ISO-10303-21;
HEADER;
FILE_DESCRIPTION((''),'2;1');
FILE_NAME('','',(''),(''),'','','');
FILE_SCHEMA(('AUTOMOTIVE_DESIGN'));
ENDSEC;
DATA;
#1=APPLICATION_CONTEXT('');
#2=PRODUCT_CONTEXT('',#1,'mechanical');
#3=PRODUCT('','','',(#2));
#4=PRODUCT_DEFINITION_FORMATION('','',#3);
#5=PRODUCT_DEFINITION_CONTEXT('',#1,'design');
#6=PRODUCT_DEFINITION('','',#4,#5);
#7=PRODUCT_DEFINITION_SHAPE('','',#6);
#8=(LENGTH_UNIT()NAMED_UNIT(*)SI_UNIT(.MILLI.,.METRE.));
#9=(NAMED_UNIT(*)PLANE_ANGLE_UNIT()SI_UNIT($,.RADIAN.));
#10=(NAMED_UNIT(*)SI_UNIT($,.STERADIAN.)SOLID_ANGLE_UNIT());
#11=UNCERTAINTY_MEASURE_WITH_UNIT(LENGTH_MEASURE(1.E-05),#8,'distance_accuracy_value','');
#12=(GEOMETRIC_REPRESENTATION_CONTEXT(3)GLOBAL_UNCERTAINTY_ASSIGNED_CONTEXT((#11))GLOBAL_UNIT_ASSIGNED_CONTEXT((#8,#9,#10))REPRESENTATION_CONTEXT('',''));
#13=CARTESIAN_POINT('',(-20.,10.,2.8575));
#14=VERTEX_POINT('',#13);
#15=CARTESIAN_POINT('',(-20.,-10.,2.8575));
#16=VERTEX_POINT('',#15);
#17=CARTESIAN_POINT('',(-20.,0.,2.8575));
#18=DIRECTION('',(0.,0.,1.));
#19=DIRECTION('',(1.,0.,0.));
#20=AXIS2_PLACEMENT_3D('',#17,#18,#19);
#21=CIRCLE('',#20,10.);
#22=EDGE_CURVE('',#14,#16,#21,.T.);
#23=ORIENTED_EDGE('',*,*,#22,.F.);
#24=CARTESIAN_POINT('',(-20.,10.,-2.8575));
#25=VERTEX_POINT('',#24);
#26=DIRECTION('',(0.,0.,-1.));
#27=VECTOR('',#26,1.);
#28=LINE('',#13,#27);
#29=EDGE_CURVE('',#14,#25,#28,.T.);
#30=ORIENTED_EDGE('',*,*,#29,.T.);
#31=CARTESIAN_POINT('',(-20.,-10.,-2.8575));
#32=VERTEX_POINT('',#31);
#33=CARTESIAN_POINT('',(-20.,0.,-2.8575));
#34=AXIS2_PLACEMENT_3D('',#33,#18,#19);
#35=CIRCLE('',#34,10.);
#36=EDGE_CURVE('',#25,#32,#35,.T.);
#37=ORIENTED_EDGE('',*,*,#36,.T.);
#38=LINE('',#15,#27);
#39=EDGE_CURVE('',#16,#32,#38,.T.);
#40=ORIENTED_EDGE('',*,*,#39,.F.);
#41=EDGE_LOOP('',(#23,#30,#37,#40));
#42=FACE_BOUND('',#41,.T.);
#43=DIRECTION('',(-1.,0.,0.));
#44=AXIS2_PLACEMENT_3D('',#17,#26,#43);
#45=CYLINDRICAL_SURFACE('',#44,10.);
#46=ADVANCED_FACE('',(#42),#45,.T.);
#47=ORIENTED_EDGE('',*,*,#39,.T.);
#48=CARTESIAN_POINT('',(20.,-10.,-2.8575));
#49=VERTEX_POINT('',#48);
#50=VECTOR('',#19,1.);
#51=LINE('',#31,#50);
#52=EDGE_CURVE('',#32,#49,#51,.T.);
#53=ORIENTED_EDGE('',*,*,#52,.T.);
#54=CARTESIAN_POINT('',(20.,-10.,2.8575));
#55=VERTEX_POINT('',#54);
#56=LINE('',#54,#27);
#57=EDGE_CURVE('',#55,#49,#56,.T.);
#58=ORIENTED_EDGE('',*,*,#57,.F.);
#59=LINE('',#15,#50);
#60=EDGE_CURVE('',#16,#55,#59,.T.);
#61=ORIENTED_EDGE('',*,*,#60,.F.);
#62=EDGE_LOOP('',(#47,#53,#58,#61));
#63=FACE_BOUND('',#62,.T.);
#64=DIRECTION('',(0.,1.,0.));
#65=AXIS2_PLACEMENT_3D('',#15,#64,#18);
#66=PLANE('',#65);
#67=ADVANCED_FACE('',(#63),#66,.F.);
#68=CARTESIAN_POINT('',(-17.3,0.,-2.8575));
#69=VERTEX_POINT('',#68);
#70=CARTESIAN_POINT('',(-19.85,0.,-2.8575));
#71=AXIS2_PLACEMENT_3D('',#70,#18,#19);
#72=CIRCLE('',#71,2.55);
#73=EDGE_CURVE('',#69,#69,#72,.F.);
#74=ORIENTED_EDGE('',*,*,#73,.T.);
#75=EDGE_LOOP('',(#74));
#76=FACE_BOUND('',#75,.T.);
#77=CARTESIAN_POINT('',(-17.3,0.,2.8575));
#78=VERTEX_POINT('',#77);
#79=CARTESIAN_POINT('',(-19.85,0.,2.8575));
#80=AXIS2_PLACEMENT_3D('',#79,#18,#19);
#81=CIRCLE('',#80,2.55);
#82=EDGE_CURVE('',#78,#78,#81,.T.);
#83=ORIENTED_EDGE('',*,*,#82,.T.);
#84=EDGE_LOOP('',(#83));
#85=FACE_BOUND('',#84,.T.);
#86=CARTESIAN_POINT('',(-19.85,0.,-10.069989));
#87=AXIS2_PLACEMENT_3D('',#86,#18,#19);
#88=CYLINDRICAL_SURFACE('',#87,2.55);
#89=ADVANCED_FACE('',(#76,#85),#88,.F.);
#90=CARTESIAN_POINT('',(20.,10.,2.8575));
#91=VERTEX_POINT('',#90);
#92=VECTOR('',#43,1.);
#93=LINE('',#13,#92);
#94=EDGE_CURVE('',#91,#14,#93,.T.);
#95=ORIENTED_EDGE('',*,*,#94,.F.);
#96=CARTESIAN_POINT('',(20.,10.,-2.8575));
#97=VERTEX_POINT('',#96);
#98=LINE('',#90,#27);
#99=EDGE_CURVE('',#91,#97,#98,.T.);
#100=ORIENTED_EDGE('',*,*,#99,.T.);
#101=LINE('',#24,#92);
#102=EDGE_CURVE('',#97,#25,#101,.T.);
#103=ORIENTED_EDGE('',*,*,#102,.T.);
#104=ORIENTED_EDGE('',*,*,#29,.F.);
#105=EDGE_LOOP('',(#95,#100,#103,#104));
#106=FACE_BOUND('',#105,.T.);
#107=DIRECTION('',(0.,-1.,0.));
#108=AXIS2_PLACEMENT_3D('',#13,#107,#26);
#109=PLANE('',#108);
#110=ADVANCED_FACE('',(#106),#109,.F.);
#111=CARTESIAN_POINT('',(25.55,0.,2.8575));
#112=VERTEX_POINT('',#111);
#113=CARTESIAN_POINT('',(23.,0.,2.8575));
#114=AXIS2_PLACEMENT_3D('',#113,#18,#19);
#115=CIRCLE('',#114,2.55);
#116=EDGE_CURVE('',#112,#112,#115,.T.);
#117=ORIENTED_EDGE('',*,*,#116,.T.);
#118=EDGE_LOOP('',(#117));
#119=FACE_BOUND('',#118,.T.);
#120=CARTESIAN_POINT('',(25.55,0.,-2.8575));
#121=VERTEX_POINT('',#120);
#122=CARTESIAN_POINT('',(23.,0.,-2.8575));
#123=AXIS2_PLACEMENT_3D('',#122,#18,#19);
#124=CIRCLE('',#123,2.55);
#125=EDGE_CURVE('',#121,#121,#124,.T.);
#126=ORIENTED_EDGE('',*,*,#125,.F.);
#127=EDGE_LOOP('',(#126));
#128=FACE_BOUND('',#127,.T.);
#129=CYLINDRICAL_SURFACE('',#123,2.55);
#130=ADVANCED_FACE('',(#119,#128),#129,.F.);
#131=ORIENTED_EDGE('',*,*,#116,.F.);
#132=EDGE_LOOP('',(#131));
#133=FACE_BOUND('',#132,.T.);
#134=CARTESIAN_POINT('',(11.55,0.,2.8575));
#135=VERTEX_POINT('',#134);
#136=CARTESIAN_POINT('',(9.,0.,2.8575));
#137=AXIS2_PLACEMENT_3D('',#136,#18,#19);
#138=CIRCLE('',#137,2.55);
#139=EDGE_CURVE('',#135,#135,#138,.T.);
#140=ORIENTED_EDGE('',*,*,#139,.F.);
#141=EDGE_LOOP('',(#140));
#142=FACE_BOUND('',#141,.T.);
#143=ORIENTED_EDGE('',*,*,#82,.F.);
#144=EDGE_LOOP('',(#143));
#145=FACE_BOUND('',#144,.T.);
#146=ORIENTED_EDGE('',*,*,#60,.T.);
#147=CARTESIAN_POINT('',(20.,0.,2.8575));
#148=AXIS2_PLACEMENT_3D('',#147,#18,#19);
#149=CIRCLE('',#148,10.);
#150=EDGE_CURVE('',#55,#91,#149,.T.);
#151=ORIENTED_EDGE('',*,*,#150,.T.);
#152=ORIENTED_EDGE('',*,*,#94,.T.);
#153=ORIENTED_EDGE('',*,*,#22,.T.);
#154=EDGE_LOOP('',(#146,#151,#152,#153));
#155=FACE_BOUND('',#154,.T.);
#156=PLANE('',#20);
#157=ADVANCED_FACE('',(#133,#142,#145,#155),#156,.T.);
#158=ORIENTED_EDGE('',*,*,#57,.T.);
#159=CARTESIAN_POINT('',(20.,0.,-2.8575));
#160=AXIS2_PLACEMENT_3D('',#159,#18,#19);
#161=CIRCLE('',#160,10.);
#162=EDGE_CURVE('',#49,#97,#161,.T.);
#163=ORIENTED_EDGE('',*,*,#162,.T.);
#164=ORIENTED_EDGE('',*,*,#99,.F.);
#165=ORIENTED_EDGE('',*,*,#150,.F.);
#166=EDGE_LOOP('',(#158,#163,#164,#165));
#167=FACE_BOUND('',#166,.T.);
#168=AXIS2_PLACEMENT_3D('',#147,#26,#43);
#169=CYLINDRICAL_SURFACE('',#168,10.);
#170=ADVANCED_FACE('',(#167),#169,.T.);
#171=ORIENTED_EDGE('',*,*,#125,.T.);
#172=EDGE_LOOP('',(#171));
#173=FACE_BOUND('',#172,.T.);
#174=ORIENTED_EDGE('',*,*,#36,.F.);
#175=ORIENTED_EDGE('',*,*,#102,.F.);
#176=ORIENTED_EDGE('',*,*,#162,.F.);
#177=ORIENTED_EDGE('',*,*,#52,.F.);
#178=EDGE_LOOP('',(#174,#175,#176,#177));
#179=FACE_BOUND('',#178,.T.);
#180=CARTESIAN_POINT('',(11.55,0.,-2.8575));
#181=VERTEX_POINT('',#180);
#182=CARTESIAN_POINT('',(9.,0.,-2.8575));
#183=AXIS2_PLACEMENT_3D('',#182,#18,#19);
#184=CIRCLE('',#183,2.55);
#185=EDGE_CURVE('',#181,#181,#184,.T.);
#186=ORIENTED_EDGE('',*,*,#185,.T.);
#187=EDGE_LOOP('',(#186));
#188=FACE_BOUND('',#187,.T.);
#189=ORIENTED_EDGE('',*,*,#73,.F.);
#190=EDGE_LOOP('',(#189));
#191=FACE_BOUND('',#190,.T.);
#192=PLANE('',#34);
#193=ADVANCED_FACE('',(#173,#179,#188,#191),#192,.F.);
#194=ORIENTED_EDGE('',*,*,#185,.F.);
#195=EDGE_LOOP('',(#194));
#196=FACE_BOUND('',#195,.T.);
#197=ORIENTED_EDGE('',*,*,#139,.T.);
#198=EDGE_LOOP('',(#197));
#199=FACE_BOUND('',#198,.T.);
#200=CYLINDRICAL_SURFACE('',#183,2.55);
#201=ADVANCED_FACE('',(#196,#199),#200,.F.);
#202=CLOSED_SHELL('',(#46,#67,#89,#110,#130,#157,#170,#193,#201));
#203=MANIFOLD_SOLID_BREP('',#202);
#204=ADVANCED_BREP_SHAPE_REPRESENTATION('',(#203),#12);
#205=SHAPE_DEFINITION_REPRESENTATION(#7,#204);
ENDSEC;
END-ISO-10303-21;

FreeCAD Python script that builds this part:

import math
import FreeCAD as App
import Part
import Sketcher

doc = App.newDocument("Part")
body = doc.addObject("PartDesign::Body", "Body")

sketch1 = body.newObject("Sketcher::SketchObject", "Sketch")
sketch1.AttachmentSupport = (doc.getObject("XY_Plane"), [""])
sketch1.MapMode = "FlatFace"
sketch1.addGeometry(Part.LineSegment(App.Vector(20, 10, 0), App.Vector(-20, 10, 0)), False)
sketch1.addGeometry(Part.ArcOfCircle(Part.Circle(App.Vector(-20, 0, 0), App.Vector(0, 0, 1), 10), math.radians(90), math.radians(270)), False)
sketch1.addGeometry(Part.LineSegment(App.Vector(-20, -10, 0), App.Vector(20, -10, 0)), False)
sketch1.addGeometry(Part.ArcOfCircle(Part.Circle(App.Vector(20, 0, 0), App.Vector(0, 0, 1), 10), math.radians(-90), math.radians(90)), False)
sketch1.addConstraint(Sketcher.Constraint("Tangent", 0, 2, 1, 1))
sketch1.addConstraint(Sketcher.Constraint("Tangent", 1, 2, 2, 1))
sketch1.addConstraint(Sketcher.Constraint("Tangent", 2, 2, 3, 1))
sketch1.addConstraint(Sketcher.Constraint("Tangent", 3, 2, 0, 1))
sketch1.addConstraint(Sketcher.Constraint("Horizontal", 0))
sketch1.addConstraint(Sketcher.Constraint("Horizontal", 2))
sketch1.addConstraint(Sketcher.Constraint("Symmetric", 1, 3, 3, 3, -1, 1))
sketch1.addConstraint(Sketcher.Constraint("Radius", 1, 10.0))
sketch1.addConstraint(Sketcher.Constraint("DistanceX", 0, 2, 0, 1, 40.0))
pad1 = body.newObject("PartDesign::Pad", "Pad")
pad1.Profile = sketch1
pad1.Length = 5.715
pad1.Midplane = True

sketch2 = body.newObject("Sketcher::SketchObject", "Sketch001")
sketch2.AttachmentSupport = (doc.getObject("XY_Plane"), [""])
sketch2.MapMode = "FlatFace"
sketch2.AttachmentOffset = App.Placement(App.Vector(0, 0, 2.8575), App.Rotation())
sketch2.addGeometry(Part.Circle(App.Vector(9, 0, 0), App.Vector(0, 0, 1), 2.5), False)
sketch2.addGeometry(Part.Circle(App.Vector(23, 0, 0), App.Vector(0, 0, 1), 2.5), False)
sketch2.addConstraint(Sketcher.Constraint("Equal", 0, 1))
sketch2.addConstraint(Sketcher.Constraint("PointOnObject", 0, 3, -1))
sketch2.addConstraint(Sketcher.Constraint("PointOnObject", 1, 3, -1))
sketch2.addConstraint(Sketcher.Constraint("Diameter", 0, 5.1))
sketch2.addConstraint(Sketcher.Constraint("DistanceX", -1, 1, 0, 3, 9.0))
sketch2.addConstraint(Sketcher.Constraint("DistanceX", -1, 1, 1, 3, 23.0))
pocket1 = body.newObject("PartDesign::Pocket", "Pocket")
pocket1.Profile = sketch2
pocket1.Type = "ThroughAll"

sketch3 = body.newObject("Sketcher::SketchObject", "Sketch002")
sketch3.AttachmentSupport = (doc.getObject("XY_Plane"), [""])
sketch3.MapMode = "FlatFace"
sketch3.AttachmentOffset = App.Placement(App.Vector(0, 0, 2.8575), App.Rotation())
sketch3.addGeometry(Part.Circle(App.Vector(-19.9, 0, 0), App.Vector(0, 0, 1), 2.5), False)
sketch3.addConstraint(Sketcher.Constraint("PointOnObject", 0, 3, -1))
sketch3.addConstraint(Sketcher.Constraint("Diameter", 0, 5.1))
sketch3.addConstraint(Sketcher.Constraint("DistanceX", 0, 3, -1, 1, 19.85))
pocket2 = body.newObject("PartDesign::Pocket", "Pocket001")
pocket2.Profile = sketch3
pocket2.Length = 5.715

doc.recompute()
